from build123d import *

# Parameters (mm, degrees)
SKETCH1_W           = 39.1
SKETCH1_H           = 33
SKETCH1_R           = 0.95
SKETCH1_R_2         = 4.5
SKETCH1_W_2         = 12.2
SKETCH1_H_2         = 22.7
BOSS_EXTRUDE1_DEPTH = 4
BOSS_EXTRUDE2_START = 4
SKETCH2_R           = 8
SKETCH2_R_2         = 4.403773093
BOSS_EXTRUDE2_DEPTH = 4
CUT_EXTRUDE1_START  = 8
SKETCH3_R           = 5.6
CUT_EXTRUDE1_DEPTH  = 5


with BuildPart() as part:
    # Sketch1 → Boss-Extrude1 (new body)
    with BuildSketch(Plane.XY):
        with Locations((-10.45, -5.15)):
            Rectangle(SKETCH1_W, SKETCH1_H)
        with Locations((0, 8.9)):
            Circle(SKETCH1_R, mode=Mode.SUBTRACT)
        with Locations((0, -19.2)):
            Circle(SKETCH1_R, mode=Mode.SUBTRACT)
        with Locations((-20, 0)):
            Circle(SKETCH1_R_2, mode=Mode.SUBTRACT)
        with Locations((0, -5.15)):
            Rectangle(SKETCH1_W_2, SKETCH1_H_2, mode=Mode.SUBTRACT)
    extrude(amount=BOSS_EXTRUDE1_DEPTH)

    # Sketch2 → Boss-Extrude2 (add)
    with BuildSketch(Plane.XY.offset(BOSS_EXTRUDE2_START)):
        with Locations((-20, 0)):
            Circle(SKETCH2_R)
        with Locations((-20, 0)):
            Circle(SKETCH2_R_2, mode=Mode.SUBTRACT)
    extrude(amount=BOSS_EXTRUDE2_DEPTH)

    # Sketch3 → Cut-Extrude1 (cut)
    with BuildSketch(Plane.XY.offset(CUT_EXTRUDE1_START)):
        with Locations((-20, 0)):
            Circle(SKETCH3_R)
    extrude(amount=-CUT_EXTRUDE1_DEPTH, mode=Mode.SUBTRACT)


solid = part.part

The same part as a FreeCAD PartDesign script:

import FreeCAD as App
import Part
import Sketcher
from FreeCAD import Vector

doc = App.newDocument("Part")
body = doc.addObject("PartDesign::Body", "Body")

sketch1 = body.newObject("Sketcher::SketchObject", "Sketch")
sketch1.AttachmentSupport = (doc.getObject("XY_Plane"), [""])
sketch1.MapMode = "FlatFace"
sketch1.addGeometry(Part.LineSegment(Vector(-30, 11.35, 0), Vector(-30, -21.65, 0)), False)
sketch1.addGeometry(Part.LineSegment(Vector(-30, -21.65, 0), Vector(9.1, -21.65, 0)), False)
sketch1.addGeometry(Part.LineSegment(Vector(9.1, -21.65, 0), Vector(9.1, 11.35, 0)), False)
sketch1.addGeometry(Part.LineSegment(Vector(9.1, 11.35, 0), Vector(-30, 11.35, 0)), False)
sketch1.addGeometry(Part.Circle(Vector(0, -19.2, 0), Vector(0, 0, 1), 0.95), False)
sketch1.addGeometry(Part.LineSegment(Vector(6.1, -16.5, 0), Vector(-6.1, -16.5, 0)), False)
sketch1.addGeometry(Part.LineSegment(Vector(-6.1, -16.5, 0), Vector(-6.1, 6.2, 0)), False)
sketch1.addGeometry(Part.LineSegment(Vector(-6.1, 6.2, 0), Vector(6.1, 6.2, 0)), False)
sketch1.addGeometry(Part.LineSegment(Vector(6.1, 6.2, 0), Vector(6.1, -16.5, 0)), False)
sketch1.addGeometry(Part.Circle(Vector(-20, 0, 0), Vector(0, 0, 1), 4.5), False)
sketch1.addGeometry(Part.Circle(Vector(0, 8.9, 0), Vector(0, 0, 1), 0.95), False)
sketch1.addConstraint(Sketcher.Constraint("Coincident", 0, 2, 1, 1))
sketch1.addConstraint(Sketcher.Constraint("Coincident", 1, 2, 2, 1))
sketch1.addConstraint(Sketcher.Constraint("Coincident", 2, 2, 3, 1))
sketch1.addConstraint(Sketcher.Constraint("Coincident", 3, 2, 0, 1))
sketch1.addConstraint(Sketcher.Constraint("Coincident", 5, 2, 6, 1))
sketch1.addConstraint(Sketcher.Constraint("Coincident", 6, 2, 7, 1))
sketch1.addConstraint(Sketcher.Constraint("Coincident", 7, 2, 8, 1))
sketch1.addConstraint(Sketcher.Constraint("Coincident", 8, 2, 5, 1))
sketch1.addConstraint(Sketcher.Constraint("Vertical", 0))
sketch1.addConstraint(Sketcher.Constraint("Horizontal", 1))
sketch1.addConstraint(Sketcher.Constraint("Vertical", 2))
sketch1.addConstraint(Sketcher.Constraint("Horizontal", 3))
sketch1.addConstraint(Sketcher.Constraint("Horizontal", 5))
sketch1.addConstraint(Sketcher.Constraint("Vertical", 6))
sketch1.addConstraint(Sketcher.Constraint("Horizontal", 7))
sketch1.addConstraint(Sketcher.Constraint("Vertical", 8))
sketch1.addConstraint(Sketcher.Constraint("Equal", 4, 10))
sketch1.addConstraint(Sketcher.Constraint("PointOnObject", 4, 3, -2))
sketch1.addConstraint(Sketcher.Constraint("PointOnObject", 9, 3, -1))
sketch1.addConstraint(Sketcher.Constraint("PointOnObject", 10, 3, -2))
sketch1.addConstraint(Sketcher.Constraint("Diameter", 9, 9.0))
sketch1.addConstraint(Sketcher.Constraint("Diameter", 4, 1.9))
sketch1.addConstraint(Sketcher.Constraint("DistanceY", 0, 2, 0, 1, 33.0))
sketch1.addConstraint(Sketcher.Constraint("DistanceX", 1, 1, 1, 2, 39.1))
sketch1.addConstraint(Sketcher.Constraint("DistanceX", 5, 2, 5, 1, 12.2))
sketch1.addConstraint(Sketcher.Constraint("DistanceY", 6, 1, 6, 2, 22.7))
sketch1.addConstraint(Sketcher.Constraint("DistanceX", 9, 3, -1, 1, 20.0))
sketch1.addConstraint(Sketcher.Constraint("DistanceX", 0, 2, -1, 1, 30.0))
sketch1.addConstraint(Sketcher.Constraint("DistanceX", 7, 2, 2, 2, 3.0))
sketch1.addConstraint(Sketcher.Constraint("DistanceY", 4, 3, -1, 1, 19.2))
sketch1.addConstraint(Sketcher.Constraint("DistanceY", -1, 1, 10, 3, 8.9))
sketch1.addConstraint(Sketcher.Constraint("DistanceY", 5, 2, -1, 1, 16.5))
sketch1.addConstraint(Sketcher.Constraint("DistanceY", 0, 2, -1, 1, 21.65))
pad1 = body.newObject("PartDesign::Pad", "Pad")
pad1.Profile = sketch1
pad1.Length = 4

sketch2 = body.newObject("Sketcher::SketchObject", "Sketch001")
sketch2.AttachmentSupport = (doc.getObject("XY_Plane"), [""])
sketch2.MapMode = "FlatFace"
sketch2.AttachmentOffset = App.Placement(Vector(0, 0, 4), App.Rotation())
sketch2.addGeometry(Part.Circle(Vector(-20, 0, 0), Vector(0, 0, 1), 8), False)
sketch2.addGeometry(Part.Circle(Vector(-20, 0, 0), Vector(0, 0, 1), 4.403773), False)
sketch2.addConstraint(Sketcher.Constraint("Coincident", 1, 3, 0, 3))
sketch2.addConstraint(Sketcher.Constraint("PointOnObject", 0, 3, -1))
sketch2.addConstraint(Sketcher.Constraint("Diameter", 0, 16.0))
sketch2.addConstraint(Sketcher.Constraint("DistanceX", 0, 3, -1, 1, 20.0))
sketch2.addConstraint(Sketcher.Constraint("Diameter", 1, 8.807546))
pad2 = body.newObject("PartDesign::Pad", "Pad001")
pad2.Profile = sketch2
pad2.Length = 4

sketch3 = body.newObject("Sketcher::SketchObject", "Sketch002")
sketch3.AttachmentSupport = (doc.getObject("XY_Plane"), [""])
sketch3.MapMode = "FlatFace"
sketch3.AttachmentOffset = App.Placement(Vector(0, 0, 8), App.Rotation())
sketch3.addGeometry(Part.Circle(Vector(-20, 0, 0), Vector(0, 0, 1), 5.6), False)
sketch3.addConstraint(Sketcher.Constraint("PointOnObject", 0, 3, -1))
sketch3.addConstraint(Sketcher.Constraint("Diameter", 0, 11.2))
sketch3.addConstraint(Sketcher.Constraint("DistanceX", 0, 3, -1, 1, 20.0))
pocket1 = body.newObject("PartDesign::Pocket", "Pocket")
pocket1.Profile = sketch3
pocket1.Length = 5

doc.recompute()
